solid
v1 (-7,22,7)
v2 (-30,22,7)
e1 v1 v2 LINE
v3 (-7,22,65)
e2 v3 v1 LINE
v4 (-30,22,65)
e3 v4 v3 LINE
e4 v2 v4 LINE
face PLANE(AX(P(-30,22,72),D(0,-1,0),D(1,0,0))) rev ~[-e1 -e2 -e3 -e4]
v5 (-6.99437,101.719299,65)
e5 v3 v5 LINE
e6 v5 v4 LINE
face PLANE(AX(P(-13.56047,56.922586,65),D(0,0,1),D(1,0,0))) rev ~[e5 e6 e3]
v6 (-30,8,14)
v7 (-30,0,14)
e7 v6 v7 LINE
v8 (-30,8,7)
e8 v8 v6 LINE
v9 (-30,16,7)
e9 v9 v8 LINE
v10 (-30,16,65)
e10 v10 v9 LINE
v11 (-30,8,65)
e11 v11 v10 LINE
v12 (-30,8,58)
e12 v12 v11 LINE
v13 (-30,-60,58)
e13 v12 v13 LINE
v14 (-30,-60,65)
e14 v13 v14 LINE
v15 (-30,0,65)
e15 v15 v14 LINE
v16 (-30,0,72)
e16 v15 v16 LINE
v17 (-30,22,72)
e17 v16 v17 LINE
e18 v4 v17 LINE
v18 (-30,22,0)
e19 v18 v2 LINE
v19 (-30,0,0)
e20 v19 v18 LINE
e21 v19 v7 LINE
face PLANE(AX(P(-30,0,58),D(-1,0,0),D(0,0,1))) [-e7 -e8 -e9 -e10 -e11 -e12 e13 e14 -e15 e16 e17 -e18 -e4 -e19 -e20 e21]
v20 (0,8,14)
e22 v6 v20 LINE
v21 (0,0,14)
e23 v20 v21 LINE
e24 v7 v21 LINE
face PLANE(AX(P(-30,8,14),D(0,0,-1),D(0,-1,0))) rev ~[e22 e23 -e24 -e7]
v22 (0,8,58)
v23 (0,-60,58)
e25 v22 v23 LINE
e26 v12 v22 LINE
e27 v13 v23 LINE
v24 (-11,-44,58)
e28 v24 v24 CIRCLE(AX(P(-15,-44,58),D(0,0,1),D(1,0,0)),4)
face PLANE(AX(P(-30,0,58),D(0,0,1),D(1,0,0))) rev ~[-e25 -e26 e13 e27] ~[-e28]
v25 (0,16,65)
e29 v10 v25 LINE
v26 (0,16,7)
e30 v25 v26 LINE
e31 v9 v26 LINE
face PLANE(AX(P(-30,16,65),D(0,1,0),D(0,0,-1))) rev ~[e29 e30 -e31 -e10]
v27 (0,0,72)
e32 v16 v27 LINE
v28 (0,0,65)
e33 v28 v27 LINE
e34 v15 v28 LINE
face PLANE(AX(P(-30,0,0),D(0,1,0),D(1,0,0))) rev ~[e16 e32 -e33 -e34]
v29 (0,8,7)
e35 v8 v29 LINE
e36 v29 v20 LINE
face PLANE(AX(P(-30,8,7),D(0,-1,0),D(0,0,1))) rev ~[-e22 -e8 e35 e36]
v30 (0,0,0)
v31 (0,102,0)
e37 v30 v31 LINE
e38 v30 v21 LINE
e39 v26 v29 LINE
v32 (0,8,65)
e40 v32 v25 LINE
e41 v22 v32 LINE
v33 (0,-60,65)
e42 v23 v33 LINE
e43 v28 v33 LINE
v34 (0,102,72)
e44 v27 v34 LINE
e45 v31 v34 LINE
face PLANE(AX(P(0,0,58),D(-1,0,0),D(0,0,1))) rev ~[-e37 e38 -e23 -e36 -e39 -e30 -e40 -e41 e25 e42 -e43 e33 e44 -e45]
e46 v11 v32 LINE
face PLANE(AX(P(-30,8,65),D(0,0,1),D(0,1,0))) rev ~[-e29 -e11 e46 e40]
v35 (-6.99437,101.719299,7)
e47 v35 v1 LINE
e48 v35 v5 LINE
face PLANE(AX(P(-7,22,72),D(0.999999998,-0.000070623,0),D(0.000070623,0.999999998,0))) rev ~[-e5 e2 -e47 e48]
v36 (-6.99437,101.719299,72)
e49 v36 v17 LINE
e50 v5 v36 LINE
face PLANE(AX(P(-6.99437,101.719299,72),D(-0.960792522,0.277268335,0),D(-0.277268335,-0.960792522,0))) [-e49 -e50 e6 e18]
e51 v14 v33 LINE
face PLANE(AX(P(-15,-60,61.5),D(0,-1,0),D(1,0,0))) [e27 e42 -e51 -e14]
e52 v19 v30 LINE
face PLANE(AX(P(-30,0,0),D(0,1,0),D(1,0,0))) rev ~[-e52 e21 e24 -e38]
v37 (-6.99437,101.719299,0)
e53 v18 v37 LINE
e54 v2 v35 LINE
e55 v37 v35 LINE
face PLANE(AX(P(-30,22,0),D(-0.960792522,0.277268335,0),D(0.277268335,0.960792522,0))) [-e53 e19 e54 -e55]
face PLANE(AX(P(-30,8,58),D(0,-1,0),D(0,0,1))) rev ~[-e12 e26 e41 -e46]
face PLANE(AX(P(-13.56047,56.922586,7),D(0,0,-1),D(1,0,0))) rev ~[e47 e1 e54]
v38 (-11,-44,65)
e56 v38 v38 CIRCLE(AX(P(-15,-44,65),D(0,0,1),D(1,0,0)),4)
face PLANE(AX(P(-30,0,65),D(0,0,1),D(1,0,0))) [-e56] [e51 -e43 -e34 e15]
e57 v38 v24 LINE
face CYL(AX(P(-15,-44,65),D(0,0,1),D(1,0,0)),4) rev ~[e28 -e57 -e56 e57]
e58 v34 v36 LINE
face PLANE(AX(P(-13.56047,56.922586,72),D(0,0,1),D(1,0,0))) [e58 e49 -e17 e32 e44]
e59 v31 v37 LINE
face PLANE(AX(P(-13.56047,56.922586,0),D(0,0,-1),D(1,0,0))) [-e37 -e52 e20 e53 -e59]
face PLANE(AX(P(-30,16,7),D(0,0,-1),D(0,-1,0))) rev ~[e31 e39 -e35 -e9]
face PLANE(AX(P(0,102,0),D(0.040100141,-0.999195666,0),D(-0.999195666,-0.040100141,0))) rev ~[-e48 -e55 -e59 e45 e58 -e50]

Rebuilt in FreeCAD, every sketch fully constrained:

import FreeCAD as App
import Part
import Sketcher
Q = App.Units.Quantity

doc = App.newDocument("Part")
params = doc.addObject("Spreadsheet::Sheet", "Params")
for row, (alias, value) in enumerate([
    ("sketch1_width", "30 mm"),
    ("sketch1_height", "22 mm"),
    ("sketch1_height2", "102 mm"),
    ("sketch1_length", "7 mm"),
    ("pad1_length", "72 mm"),
    ("sketch2_width", "23 mm"),
    ("sketch3_width", "23 mm"),
    ("pad2_length", "7 mm"),
    ("sketch4_width", "23 mm"),
    ("pad3_length", "7 mm"),
    ("sketch5_width", "8 mm"),
    ("sketch5_height", "58 mm"),
    ("sketch5_height2", "7 mm"),
    ("sketch6_width", "30 mm"),
    ("sketch6_height", "7 mm"),
    ("pad4_length", "60 mm"),
    ("sketch7_diameter", "8 mm"),
], start=1):
    params.set(f"A{row}", alias)
    params.set(f"B{row}", "=" + value)
    params.setAlias(f"B{row}", alias)

body = doc.addObject("PartDesign::Body", "Body")

sketch1 = body.newObject("Sketcher::SketchObject", "Sketch")
sketch1.AttachmentSupport = (doc.getObject("XY_Plane"), [""])
sketch1.MapMode = "FlatFace"
sketch1.addGeometry([
    Part.LineSegment(App.Vector(-30, 22, 0), App.Vector(-30, 0, 0)),
    Part.LineSegment(App.Vector(-30, 0, 0), App.Vector(0, 0, 0)),
    Part.LineSegment(App.Vector(0, 0, 0), App.Vector(0, 102, 0)),
    Part.LineSegment(App.Vector(0, 102, 0), App.Vector(-7, 102, 0)),
    Part.LineSegment(App.Vector(-7, 102, 0), App.Vector(-30, 22, 0)),
], False)
sketch1.addConstraint([
    Sketcher.Constraint("Coincident", 0, 2, 1, 1),
    Sketcher.Constraint("Coincident", 1, 2, 2, 1),
    Sketcher.Constraint("Coincident", 2, 2, 3, 1),
    Sketcher.Constraint("Coincident", 3, 2, 4, 1),
    Sketcher.Constraint("Coincident", 4, 2, 0, 1),
    Sketcher.Constraint("Vertical", 0),
    Sketcher.Constraint("Horizontal", 1),
    Sketcher.Constraint("Vertical", 2),
    Sketcher.Constraint("Coincident", 1, 2, -1, 1),
    Sketcher.Constraint("DistanceX", 1, 1, 1, 2, Q("30 mm")),
    Sketcher.Constraint("DistanceY", 0, 2, 0, 1, Q("22 mm")),
    Sketcher.Constraint("DistanceY", 2, 1, 2, 2, Q("102 mm")),
    Sketcher.Constraint("Distance", 3, Q("7 mm")),
    Sketcher.Constraint("DistanceY", -1, 1, 3, 2, Q("101.719299 mm")),
])
sketch1.setExpression("Constraints[9]", "Params.sketch1_width")
sketch1.setExpression("Constraints[10]", "Params.sketch1_height")
sketch1.setExpression("Constraints[11]", "Params.sketch1_height2")
sketch1.setExpression("Constraints[12]", "Params.sketch1_length")
pad1 = body.newObject("PartDesign::Pad", "Pad")
pad1.Profile = sketch1
pad1.setExpression("Length", "Params.pad1_length")

sketch2 = body.newObject("Sketcher::SketchObject", "Sketch001")
sketch2.AttachmentSupport = (doc.getObject("XY_Plane"), [""])
sketch2.MapMode = "FlatFace"
sketch2.AttachmentOffset = App.Placement(App.Vector(0, 0, 72), App.Rotation())
sketch2.addGeometry([
    Part.LineSegment(App.Vector(-7, 102, 0), App.Vector(-30, 22, 0)),
    Part.LineSegment(App.Vector(-30, 22, 0), App.Vector(-7, 22, 0)),
    Part.LineSegment(App.Vector(-7, 22, 0), App.Vector(-7, 102, 0)),
], False)
sketch2.addConstraint([
    Sketcher.Constraint("Coincident", 0, 2, 1, 1),
    Sketcher.Constraint("Coincident", 1, 2, 2, 1),
    Sketcher.Constraint("Coincident", 2, 2, 0, 1),
    Sketcher.Constraint("Horizontal", 1),
    Sketcher.Constraint("DistanceX", 1, 1, 1, 2, Q("23 mm")),
    Sketcher.Constraint("DistanceX", 0, 2, -1, 1, Q("30 mm")),
    Sketcher.Constraint("DistanceY", -1, 1, 0, 2, Q("22 mm")),
    Sketcher.Constraint("Distance", 2, Q("79.719299 mm")),
    Sketcher.Constraint("Distance", 0, Q("82.972439 mm")),
])
sketch2.setExpression("Constraints[4]", "Params.sketch2_width")
pocket1 = body.newObject("PartDesign::Pocket", "Pocket")
pocket1.Profile = sketch2
pocket1.Type = "ThroughAll"

sketch3 = body.newObject("Sketcher::SketchObject", "Sketch002")
sketch3.AttachmentSupport = (doc.getObject("XY_Plane"), [""])
sketch3.MapMode = "FlatFace"
sketch3.AttachmentOffset = App.Placement(App.Vector(0, 0, 72), App.Rotation())
sketch3.addGeometry([
    Part.LineSegment(App.Vector(-7, 102, 0), App.Vector(-30, 22, 0)),
    Part.LineSegment(App.Vector(-30, 22, 0), App.Vector(-7, 22, 0)),
    Part.LineSegment(App.Vector(-7, 22, 0), App.Vector(-7, 102, 0)),
], False)
sketch3.addConstraint([
    Sketcher.Constraint("Coincident", 0, 2, 1, 1),
    Sketcher.Constraint("Coincident", 1, 2, 2, 1),
    Sketcher.Constraint("Coincident", 2, 2, 0, 1),
    Sketcher.Constraint("Horizontal", 1),
    Sketcher.Constraint("DistanceX", 1, 1, 1, 2, Q("23 mm")),
    Sketcher.Constraint("DistanceX", 0, 2, -1, 1, Q("30 mm")),
    Sketcher.Constraint("DistanceY", -1, 1, 0, 2, Q("22 mm")),
    Sketcher.Constraint("Distance", 2, Q("79.719299 mm")),
    Sketcher.Constraint("Distance", 0, Q("82.972439 mm")),
])
sketch3.setExpression("Constraints[4]", "Params.sketch3_width")
pad2 = body.newObject("PartDesign::Pad", "Pad001")
pad2.Profile = sketch3
pad2.setExpression("Length", "Params.pad2_length")
pad2.Reversed = True

sketch4 = body.newObject("Sketcher::SketchObject", "Sketch003")
sketch4.AttachmentSupport = (doc.getObject("XY_Plane"), [""])
sketch4.MapMode = "FlatFace"
sketch4.addGeometry([
    Part.LineSegment(App.Vector(-7, 102, 0), App.Vector(-7, 22, 0)),
    Part.LineSegment(App.Vector(-7, 22, 0), App.Vector(-30, 22, 0)),
    Part.LineSegment(App.Vector(-30, 22, 0), App.Vector(-7, 102, 0)),
], False)
sketch4.addConstraint([
    Sketcher.Constraint("Coincident", 0, 2, 1, 1),
    Sketcher.Constraint("Coincident", 1, 2, 2, 1),
    Sketcher.Constraint("Coincident", 2, 2, 0, 1),
    Sketcher.Constraint("Horizontal", 1),
    Sketcher.Constraint("DistanceX", 1, 2, 1, 1, Q("23 mm")),
    Sketcher.Constraint("DistanceX", 0, 2, -1, 1, Q("7 mm")),
    Sketcher.Constraint("DistanceY", -1, 1, 0, 2, Q("22 mm")),
    Sketcher.Constraint("Distance", 0, Q("79.719299 mm")),
    Sketcher.Constraint("Distance", 2, Q("82.972439 mm")),
])
sketch4.setExpression("Constraints[4]", "Params.sketch4_width")
pad3 = body.newObject("PartDesign::Pad", "Pad002")
pad3.Profile = sketch4
pad3.setExpression("Length", "Params.pad3_length")

sketch5 = body.newObject("Sketcher::SketchObject", "Sketch004")
sketch5.AttachmentSupport = (doc.getObject("YZ_Plane"), [""])
sketch5.MapMode = "FlatFace"
sketch5.AttachmentOffset = App.Placement(App.Vector(0, 0, -30), App.Rotation())
sketch5.addGeometry([
    Part.LineSegment(App.Vector(8, 65, 0), App.Vector(16, 65, 0)),
    Part.LineSegment(App.Vector(16, 65, 0), App.Vector(16, 7, 0)),
    Part.LineSegment(App.Vector(16, 7, 0), App.Vector(8, 7, 0)),
    Part.LineSegment(App.Vector(8, 7, 0), App.Vector(8, 14, 0)),
    Part.LineSegment(App.Vector(8, 14, 0), App.Vector(0, 14, 0)),
    Part.LineSegment(App.Vector(0, 14, 0), App.Vector(0, 58, 0)),
    Part.LineSegment(App.Vector(0, 58, 0), App.Vector(8, 58, 0)),
    Part.LineSegment(App.Vector(8, 58, 0), App.Vector(8, 65, 0)),
], False)
sketch5.addConstraint([
    Sketcher.Constraint("Coincident", 0, 2, 1, 1),
    Sketcher.Constraint("Coincident", 1, 2, 2, 1),
    Sketcher.Constraint("Coincident", 2, 2, 3, 1),
    Sketcher.Constraint("Coincident", 3, 2, 4, 1),
    Sketcher.Constraint("Coincident", 4, 2, 5, 1),
    Sketcher.Constraint("Coincident", 5, 2, 6, 1),
    Sketcher.Constraint("Coincident", 6, 2, 7, 1),
    Sketcher.Constraint("Coincident", 7, 2, 0, 1),
    Sketcher.Constraint("Horizontal", 0),
    Sketcher.Constraint("Vertical", 1),
    Sketcher.Constraint("Horizontal", 2),
    Sketcher.Constraint("Vertical", 3),
    Sketcher.Constraint("Horizontal", 4),
    Sketcher.Constraint("Vertical", 5),
    Sketcher.Constraint("Horizontal", 6),
    Sketcher.Constraint("Vertical", 7),
    Sketcher.Constraint("PointOnObject", 4, 2, -2),
    Sketcher.Constraint("Vertical", 3, 2, 6, 2),
    Sketcher.Constraint("Equal", 2, 4),
    Sketcher.Constraint("Equal", 3, 7),
    Sketcher.Constraint("DistanceX", 0, 1, 0, 2, Q("8 mm")),
    Sketcher.Constraint("DistanceY", 1, 2, 1, 1, Q("58 mm")),
    Sketcher.Constraint("DistanceY", 3, 1, 3, 2, Q("7 mm")),
    Sketcher.Constraint("DistanceY", -1, 1, 0, 2, Q("65 mm")),
])
sketch5.setExpression("Constraints[20]", "Params.sketch5_width")
sketch5.setExpression("Constraints[21]", "Params.sketch5_height")
sketch5.setExpression("Constraints[22]", "Params.sketch5_height2")
pocket2 = body.newObject("PartDesign::Pocket", "Pocket001")
pocket2.Profile = sketch5
pocket2.Type = "ThroughAll"
pocket2.Reversed = True

sketch6 = body.newObject("Sketcher::SketchObject", "Sketch005")
sketch6.AttachmentSupport = (doc.getObject("XZ_Plane"), [""])
sketch6.MapMode = "FlatFace"
sketch6.addGeometry([
    Part.LineSegment(App.Vector(-30, 65, 0), App.Vector(-30, 58, 0)),
    Part.LineSegment(App.Vector(-30, 58, 0), App.Vector(0, 58, 0)),
    Part.LineSegment(App.Vector(0, 58, 0), App.Vector(0, 65, 0)),
    Part.LineSegment(App.Vector(0, 65, 0), App.Vector(-30, 65, 0)),
], False)
sketch6.addConstraint([
    Sketcher.Constraint("Coincident", 0, 2, 1, 1),
    Sketcher.Constraint("Coincident", 1, 2, 2, 1),
    Sketcher.Constraint("Coincident", 2, 2, 3, 1),
    Sketcher.Constraint("Coincident", 3, 2, 0, 1),
    Sketcher.Constraint("Vertical", 0),
    Sketcher.Constraint("Horizontal", 1),
    Sketcher.Constraint("Vertical", 2),
    Sketcher.Constraint("Horizontal", 3),
    Sketcher.Constraint("PointOnObject", 1, 2, -2),
    Sketcher.Constraint("DistanceX", 1, 1, 1, 2, Q("30 mm")),
    Sketcher.Constraint("DistanceY", 0, 2, 0, 1, Q("7 mm")),
    Sketcher.Constraint("DistanceY", -1, 1, 0, 2, Q("58 mm")),
])
sketch6.setExpression("Constraints[9]", "Params.sketch6_width")
sketch6.setExpression("Constraints[10]", "Params.sketch6_height")
pad4 = body.newObject("PartDesign::Pad", "Pad003")
pad4.Profile = sketch6
pad4.setExpression("Length", "Params.pad4_length")

sketch7 = body.newObject("Sketcher::SketchObject", "Sketch006")
sketch7.AttachmentSupport = (doc.getObject("XY_Plane"), [""])
sketch7.MapMode = "FlatFace"
sketch7.AttachmentOffset = App.Placement(App.Vector(0, 0, 65), App.Rotation())
sketch7.addGeometry(Part.Circle(App.Vector(-15, -44, 0), App.Vector(0, 0, 1), 4), False)
sketch7.addConstraint([
    Sketcher.Constraint("Diameter", 0, Q("8 mm")),
    Sketcher.Constraint("DistanceX", 0, 3, -1, 1, Q("15 mm")),
    Sketcher.Constraint("DistanceY", 0, 3, -1, 1, Q("44 mm")),
])
sketch7.setExpression("Constraints[0]", "Params.sketch7_diameter")
pocket3 = body.newObject("PartDesign::Pocket", "Pocket002")
pocket3.Profile = sketch7
pocket3.Type = "ThroughAll"

doc.recompute()
